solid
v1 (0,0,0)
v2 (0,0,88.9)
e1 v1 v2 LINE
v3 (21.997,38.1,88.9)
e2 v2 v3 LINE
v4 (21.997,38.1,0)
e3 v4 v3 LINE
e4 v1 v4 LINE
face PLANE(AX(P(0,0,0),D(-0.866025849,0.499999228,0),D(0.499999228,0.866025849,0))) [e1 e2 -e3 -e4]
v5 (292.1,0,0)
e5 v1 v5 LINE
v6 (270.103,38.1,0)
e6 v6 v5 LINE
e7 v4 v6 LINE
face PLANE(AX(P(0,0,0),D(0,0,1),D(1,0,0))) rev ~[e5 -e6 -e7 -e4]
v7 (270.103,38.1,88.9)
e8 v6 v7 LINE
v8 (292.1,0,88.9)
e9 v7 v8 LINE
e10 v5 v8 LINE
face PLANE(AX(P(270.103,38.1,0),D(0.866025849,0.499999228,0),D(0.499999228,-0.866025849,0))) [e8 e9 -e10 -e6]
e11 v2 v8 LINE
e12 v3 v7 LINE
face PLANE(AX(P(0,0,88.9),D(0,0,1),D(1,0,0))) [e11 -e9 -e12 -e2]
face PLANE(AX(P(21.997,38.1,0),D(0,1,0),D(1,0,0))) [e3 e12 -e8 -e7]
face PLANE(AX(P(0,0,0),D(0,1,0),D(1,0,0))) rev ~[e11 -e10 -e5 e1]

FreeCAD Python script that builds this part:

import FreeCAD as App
import Part
import Sketcher

V = App.Vector
Q = App.Units.Quantity

doc = App.newDocument("Part")
body = doc.addObject("PartDesign::Body", "Body")

sketch1 = doc.addObject("Sketcher::SketchObject", "Sketch")
body.addObject(sketch1)
sketch1.AttachmentSupport = (doc.XY_Plane, [""])
sketch1.MapMode = "FlatFace"
sketch1.addGeometry(Part.LineSegment(V(21.997, 38.1, 0), V(0, 0, 0)), False)
sketch1.addGeometry(Part.LineSegment(V(0, 0, 0), V(292.1, 0, 0)), False)
sketch1.addGeometry(Part.LineSegment(V(292.1, 0, 0), V(270.103, 38.1, 0)), False)
sketch1.addGeometry(Part.LineSegment(V(270.103, 38.1, 0), V(21.997, 38.1, 0)), False)
sketch1.addConstraint(Sketcher.Constraint("Coincident", 0, 2, 1, 1))
sketch1.addConstraint(Sketcher.Constraint("Coincident", 1, 2, 2, 1))
sketch1.addConstraint(Sketcher.Constraint("Coincident", 2, 2, 3, 1))
sketch1.addConstraint(Sketcher.Constraint("Coincident", 3, 2, 0, 1))
sketch1.addConstraint(Sketcher.Constraint("Horizontal", 1))
sketch1.addConstraint(Sketcher.Constraint("Horizontal", 3))
sketch1.addConstraint(Sketcher.Constraint("Coincident", 0, 2, -1, 1))
sketch1.addConstraint(Sketcher.Constraint("Equal", 0, 2))
sketch1.addConstraint(Sketcher.Constraint("DistanceX", 1, 1, 1, 2, Q("11.5 in")))
sketch1.addConstraint(Sketcher.Constraint("DistanceY", -1, 1, 2, 2, Q("1.5 in")))
sketch1.addConstraint(Sketcher.Constraint("Angle", 0, Q("-120 deg")))
pad1 = doc.addObject("PartDesign::Pad", "Pad")
body.addObject(pad1)
pad1.Profile = sketch1
pad1.Length = Q("3.5 in")

doc.recompute()
